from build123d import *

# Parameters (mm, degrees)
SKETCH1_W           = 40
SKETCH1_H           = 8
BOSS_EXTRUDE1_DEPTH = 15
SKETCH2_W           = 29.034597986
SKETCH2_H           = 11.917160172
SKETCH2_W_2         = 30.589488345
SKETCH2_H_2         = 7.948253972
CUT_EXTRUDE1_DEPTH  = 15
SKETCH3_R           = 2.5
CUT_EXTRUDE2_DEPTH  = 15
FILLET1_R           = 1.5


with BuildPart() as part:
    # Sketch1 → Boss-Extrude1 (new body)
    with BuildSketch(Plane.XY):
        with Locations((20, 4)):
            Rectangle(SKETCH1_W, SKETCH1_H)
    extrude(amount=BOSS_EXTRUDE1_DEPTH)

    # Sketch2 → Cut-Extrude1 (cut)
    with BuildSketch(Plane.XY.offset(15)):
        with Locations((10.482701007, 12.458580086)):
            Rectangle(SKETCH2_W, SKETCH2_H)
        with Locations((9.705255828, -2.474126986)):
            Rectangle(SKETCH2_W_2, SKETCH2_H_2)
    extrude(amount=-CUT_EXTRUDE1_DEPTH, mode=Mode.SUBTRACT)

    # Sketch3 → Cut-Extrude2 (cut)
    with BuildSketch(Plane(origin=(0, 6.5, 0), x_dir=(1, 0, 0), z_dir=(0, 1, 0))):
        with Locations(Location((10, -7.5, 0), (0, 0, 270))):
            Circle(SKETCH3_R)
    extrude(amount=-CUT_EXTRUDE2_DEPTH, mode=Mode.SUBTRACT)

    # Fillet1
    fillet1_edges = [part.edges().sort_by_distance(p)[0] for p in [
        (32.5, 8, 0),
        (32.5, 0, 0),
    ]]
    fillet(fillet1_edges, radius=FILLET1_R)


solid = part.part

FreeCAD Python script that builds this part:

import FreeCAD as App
import Part
import Sketcher
Q = App.Units.Quantity


def edges_at(feature, points):
    """Names of the edges that pass closest to the given points."""
    edges = feature.Shape.Edges
    near = lambda p: min(range(len(edges)), key=lambda i: edges[i].distToShape(Part.Vertex(*p))[0])
    return sorted({f"Edge{near(p) + 1}" for p in points})


def add_polygon(sketch, points):
    """Adds a closed chain of lines whose ends are joined by coincident constraints."""
    first, n = sketch.GeometryCount, len(points)
    for a, b in zip(points, points[1:] + points[:1]):
        sketch.addGeometry(Part.LineSegment(App.Vector(*a, 0), App.Vector(*b, 0)), False)
    for i in range(n):
        sketch.addConstraint(Sketcher.Constraint("Coincident", first + i, 2, first + (i + 1) % n, 1))

doc = App.newDocument("Part")
params = doc.addObject("Spreadsheet::Sheet", "Params")
for row, (alias, value) in enumerate([
    ("sketch1_width", "40 mm"),
    ("sketch1_height", "8 mm"),
    ("pad1_length", "15 mm"),
    ("pocket1_length", "15 mm"),
    ("sketch3_diameter", "5 mm"),
    ("pocket2_length", "15 mm"),
    ("fillet_radius", "1.5 mm"),
], start=1):
    params.set(f"A{row}", alias)
    params.set(f"B{row}", "=" + value)
    params.setAlias(f"B{row}", alias)

body = doc.addObject("PartDesign::Body", "Body")

# Sketch on XY plane
sketch1 = body.newObject("Sketcher::SketchObject", "Sketch")
sketch1.AttachmentSupport = (doc.getObject("XY_Plane"), [""])
sketch1.MapMode = "FlatFace"
add_polygon(sketch1, [(0, 8), (0, 0), (40, 0), (40, 8)])  # lines 0-3
sketch1.addConstraint([
    Sketcher.Constraint("Vertical", 0),
    Sketcher.Constraint("Horizontal", 1),
    Sketcher.Constraint("Vertical", 2),
    Sketcher.Constraint("Horizontal", 3),
    Sketcher.Constraint("Coincident", 0, 2, -1, 1),
    Sketcher.Constraint("DistanceX", 1, 1, 1, 2, Q("40 mm")),
    Sketcher.Constraint("DistanceY", 0, 2, 0, 1, Q("8 mm")),
])
sketch1.setExpression("Constraints[9]", "Params.sketch1_width")
sketch1.setExpression("Constraints[10]", "Params.sketch1_height")
pad1 = body.newObject("PartDesign::Pad", "Pad")
pad1.Profile = sketch1
pad1.setExpression("Length", "Params.pad1_length")

# Sketch on XY plane
sketch2 = body.newObject("Sketcher::SketchObject", "Sketch001")
sketch2.AttachmentSupport = (doc.getObject("XY_Plane"), [""])
sketch2.MapMode = "FlatFace"
sketch2.AttachmentOffset = App.Placement(App.Vector(0, 0, 15), App.Rotation())
add_polygon(sketch2, [(-4, 18), (-4, 6), (25, 6), (25, 18)])  # lines 0-3
add_polygon(sketch2, [(-6, 2), (-6, -6), (25, -6), (25, 2)])  # lines 4-7
sketch2.addConstraint([
    Sketcher.Constraint("Vertical", 0),
    Sketcher.Constraint("Horizontal", 1),
    Sketcher.Constraint("Vertical", 2),
    Sketcher.Constraint("Horizontal", 3),
    Sketcher.Constraint("Vertical", 4),
    Sketcher.Constraint("Horizontal", 5),
    Sketcher.Constraint("Vertical", 6),
    Sketcher.Constraint("Horizontal", 7),
    Sketcher.Constraint("Vertical", 2, 2, 5, 2),
    Sketcher.Constraint("DistanceX", -1, 1, 1, 2, Q("25 mm")),
    Sketcher.Constraint("DistanceY", 6, 2, 1, 2, Q("5 mm")),
    Sketcher.Constraint("DistanceY", -1, 1, 0, 2, Q("6.5 mm")),
    Sketcher.Constraint("DistanceX", 5, 1, 5, 2, Q("30.589488 mm")),
    Sketcher.Constraint("DistanceY", 0, 2, 0, 1, Q("11.91716 mm")),
    Sketcher.Constraint("DistanceX", 1, 1, 1, 2, Q("29.034598 mm")),
    Sketcher.Constraint("DistanceY", 4, 2, 4, 1, Q("7.948254 mm")),
])
pocket1 = body.newObject("PartDesign::Pocket", "Pocket")
pocket1.Profile = sketch2
pocket1.setExpression("Length", "Params.pocket1_length")

# Sketch on XZ plane
sketch3 = body.newObject("Sketcher::SketchObject", "Sketch002")
sketch3.AttachmentSupport = (doc.getObject("XZ_Plane"), [""])
sketch3.MapMode = "FlatFace"
sketch3.AttachmentOffset = App.Placement(App.Vector(0, 0, -6.5), App.Rotation())
sketch3.addGeometry(Part.Circle(App.Vector(10, 7.5, 0), App.Vector(0, 0, 1), 2.5), False)
sketch3.addConstraint([
    Sketcher.Constraint("Diameter", 0, Q("5 mm")),
    Sketcher.Constraint("DistanceX", -1, 1, 0, 3, Q("10 mm")),
    Sketcher.Constraint("DistanceY", -1, 1, 0, 3, Q("7.5 mm")),
])
sketch3.setExpression("Constraints[0]", "Params.sketch3_diameter")
pocket2 = body.newObject("PartDesign::Pocket", "Pocket001")
pocket2.Profile = sketch3
pocket2.setExpression("Length", "Params.pocket2_length")
pocket2.Reversed = True
doc.recompute()

fillet = body.newObject("PartDesign::Fillet", "Fillet")
fillet.Base = (pocket2, edges_at(pocket2, [(32.5, 8, 0), (32.5, 0, 0)]))
fillet.setExpression("Radius", "Params.fillet_radius")

doc.recompute()
